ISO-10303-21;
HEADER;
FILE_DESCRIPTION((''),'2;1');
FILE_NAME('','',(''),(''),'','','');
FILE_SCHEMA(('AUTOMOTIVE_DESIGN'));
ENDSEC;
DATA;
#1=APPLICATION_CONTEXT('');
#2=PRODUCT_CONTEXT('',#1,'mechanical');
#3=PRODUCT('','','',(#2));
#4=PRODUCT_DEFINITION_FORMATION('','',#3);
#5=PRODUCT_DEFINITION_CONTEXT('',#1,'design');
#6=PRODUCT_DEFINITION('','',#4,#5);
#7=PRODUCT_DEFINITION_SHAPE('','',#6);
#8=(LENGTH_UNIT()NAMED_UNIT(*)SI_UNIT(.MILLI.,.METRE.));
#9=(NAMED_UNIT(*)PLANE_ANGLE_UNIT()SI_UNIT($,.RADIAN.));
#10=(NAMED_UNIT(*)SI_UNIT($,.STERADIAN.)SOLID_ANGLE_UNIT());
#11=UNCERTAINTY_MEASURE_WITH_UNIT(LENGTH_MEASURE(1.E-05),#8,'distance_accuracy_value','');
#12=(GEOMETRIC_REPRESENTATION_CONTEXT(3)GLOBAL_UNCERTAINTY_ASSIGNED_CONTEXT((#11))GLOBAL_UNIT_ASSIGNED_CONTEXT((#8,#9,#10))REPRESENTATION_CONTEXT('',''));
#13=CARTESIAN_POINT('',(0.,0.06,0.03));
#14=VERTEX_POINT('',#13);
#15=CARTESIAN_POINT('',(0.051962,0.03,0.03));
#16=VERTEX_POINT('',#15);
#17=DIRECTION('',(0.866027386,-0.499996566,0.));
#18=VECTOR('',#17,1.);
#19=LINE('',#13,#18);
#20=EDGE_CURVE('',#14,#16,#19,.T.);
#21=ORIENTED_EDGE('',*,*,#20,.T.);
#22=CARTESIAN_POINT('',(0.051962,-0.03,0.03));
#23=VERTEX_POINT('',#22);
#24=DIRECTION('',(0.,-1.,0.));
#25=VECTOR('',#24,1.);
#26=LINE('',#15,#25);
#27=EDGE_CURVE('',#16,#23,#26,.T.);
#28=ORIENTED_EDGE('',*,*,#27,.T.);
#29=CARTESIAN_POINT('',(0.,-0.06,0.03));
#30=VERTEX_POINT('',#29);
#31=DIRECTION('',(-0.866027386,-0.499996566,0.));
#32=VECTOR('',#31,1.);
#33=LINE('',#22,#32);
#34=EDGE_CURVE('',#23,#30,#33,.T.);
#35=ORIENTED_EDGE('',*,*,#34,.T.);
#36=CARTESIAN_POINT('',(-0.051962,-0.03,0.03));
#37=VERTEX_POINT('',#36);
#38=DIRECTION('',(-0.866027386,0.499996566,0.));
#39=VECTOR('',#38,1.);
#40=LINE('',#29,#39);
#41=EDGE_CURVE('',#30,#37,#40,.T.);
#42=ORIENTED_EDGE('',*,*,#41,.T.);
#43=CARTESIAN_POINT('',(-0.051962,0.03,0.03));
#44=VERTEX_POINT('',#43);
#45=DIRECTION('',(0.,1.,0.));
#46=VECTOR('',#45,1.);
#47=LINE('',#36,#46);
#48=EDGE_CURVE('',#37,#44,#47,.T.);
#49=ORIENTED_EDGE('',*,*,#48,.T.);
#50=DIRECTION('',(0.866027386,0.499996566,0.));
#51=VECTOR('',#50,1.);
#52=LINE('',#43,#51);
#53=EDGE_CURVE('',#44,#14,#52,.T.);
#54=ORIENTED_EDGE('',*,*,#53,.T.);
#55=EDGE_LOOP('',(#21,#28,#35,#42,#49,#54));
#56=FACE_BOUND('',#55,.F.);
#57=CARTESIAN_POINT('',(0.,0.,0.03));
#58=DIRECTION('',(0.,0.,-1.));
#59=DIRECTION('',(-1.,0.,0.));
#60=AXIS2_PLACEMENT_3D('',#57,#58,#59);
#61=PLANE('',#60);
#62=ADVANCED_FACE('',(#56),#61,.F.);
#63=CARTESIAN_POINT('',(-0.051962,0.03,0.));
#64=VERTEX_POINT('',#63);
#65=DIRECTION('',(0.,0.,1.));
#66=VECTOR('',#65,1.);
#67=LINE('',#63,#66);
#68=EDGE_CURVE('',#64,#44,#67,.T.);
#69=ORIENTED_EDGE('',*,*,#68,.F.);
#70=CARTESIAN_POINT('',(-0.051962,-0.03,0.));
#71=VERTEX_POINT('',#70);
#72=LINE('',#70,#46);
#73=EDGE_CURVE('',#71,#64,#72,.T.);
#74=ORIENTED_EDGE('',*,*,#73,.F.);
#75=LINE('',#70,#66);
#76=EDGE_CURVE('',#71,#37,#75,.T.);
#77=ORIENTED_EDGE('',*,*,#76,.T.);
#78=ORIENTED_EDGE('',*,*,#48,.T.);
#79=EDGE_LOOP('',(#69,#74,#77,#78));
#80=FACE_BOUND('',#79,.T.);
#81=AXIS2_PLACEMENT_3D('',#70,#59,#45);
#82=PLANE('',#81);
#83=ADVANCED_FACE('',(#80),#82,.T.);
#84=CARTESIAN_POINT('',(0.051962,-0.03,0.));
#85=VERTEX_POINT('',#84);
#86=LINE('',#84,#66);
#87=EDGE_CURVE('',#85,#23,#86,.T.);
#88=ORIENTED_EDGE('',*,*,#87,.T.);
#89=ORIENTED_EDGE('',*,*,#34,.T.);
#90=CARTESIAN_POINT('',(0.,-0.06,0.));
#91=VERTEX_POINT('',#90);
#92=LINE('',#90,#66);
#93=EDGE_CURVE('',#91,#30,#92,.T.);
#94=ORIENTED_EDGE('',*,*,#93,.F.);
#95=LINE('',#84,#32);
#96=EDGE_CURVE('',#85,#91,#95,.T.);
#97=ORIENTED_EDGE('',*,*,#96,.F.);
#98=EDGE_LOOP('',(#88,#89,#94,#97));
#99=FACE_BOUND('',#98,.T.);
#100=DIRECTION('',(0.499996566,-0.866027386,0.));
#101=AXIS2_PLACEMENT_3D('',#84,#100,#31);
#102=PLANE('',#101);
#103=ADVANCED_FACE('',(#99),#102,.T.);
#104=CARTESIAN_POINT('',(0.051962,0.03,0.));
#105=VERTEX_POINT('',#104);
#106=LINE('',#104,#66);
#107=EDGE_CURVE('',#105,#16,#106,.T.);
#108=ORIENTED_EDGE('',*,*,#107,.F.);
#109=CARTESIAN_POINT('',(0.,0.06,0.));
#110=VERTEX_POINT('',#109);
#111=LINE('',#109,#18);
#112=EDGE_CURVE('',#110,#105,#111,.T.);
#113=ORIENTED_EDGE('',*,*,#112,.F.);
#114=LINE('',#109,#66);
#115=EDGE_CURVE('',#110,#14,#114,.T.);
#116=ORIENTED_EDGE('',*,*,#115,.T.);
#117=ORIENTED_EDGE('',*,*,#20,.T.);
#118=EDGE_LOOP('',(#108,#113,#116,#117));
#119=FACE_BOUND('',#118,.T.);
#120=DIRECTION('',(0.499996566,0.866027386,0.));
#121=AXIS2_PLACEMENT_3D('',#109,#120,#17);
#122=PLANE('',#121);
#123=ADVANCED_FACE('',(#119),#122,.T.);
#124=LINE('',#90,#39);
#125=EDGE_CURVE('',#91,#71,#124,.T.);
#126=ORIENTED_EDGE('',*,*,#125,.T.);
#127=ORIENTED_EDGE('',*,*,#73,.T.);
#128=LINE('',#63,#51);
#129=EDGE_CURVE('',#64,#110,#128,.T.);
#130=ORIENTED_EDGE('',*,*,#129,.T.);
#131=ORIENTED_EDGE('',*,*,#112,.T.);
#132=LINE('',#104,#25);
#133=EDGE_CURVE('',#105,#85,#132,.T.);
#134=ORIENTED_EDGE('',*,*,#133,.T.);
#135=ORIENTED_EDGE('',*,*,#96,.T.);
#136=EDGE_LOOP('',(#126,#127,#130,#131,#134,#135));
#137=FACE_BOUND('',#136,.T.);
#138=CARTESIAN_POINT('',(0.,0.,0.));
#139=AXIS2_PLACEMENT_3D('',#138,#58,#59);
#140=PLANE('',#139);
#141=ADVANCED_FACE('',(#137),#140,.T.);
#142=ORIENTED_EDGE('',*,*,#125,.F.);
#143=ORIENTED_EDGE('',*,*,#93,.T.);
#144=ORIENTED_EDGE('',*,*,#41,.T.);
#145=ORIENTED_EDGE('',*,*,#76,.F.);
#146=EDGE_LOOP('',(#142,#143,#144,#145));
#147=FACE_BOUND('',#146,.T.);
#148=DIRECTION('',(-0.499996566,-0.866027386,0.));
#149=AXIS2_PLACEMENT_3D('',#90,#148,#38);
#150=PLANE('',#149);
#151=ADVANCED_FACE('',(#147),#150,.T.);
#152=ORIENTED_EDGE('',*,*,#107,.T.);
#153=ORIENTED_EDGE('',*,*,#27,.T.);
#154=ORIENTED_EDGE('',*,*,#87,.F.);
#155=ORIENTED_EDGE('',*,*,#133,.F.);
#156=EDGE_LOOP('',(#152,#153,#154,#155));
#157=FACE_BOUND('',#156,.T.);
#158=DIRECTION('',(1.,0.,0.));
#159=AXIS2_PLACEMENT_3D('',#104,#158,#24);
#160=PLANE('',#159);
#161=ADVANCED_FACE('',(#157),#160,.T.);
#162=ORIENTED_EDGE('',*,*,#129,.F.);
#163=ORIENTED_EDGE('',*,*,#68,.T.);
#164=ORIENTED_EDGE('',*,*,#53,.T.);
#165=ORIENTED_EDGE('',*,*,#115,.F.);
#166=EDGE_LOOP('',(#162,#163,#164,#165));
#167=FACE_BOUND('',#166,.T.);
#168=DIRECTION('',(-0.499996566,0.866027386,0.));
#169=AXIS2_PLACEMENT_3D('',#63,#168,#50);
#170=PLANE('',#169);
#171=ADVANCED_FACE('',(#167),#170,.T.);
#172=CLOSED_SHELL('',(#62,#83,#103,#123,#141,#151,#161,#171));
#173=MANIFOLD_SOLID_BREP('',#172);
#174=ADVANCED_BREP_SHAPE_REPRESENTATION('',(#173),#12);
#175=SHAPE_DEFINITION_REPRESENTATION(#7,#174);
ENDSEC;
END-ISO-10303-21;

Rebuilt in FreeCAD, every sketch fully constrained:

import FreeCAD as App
import Part
import Sketcher

V = App.Vector
Q = App.Units.Quantity

doc = App.newDocument("Part")
params = doc.addObject("Spreadsheet::Sheet", "Params")
for row, (alias, value) in enumerate([
    ("sketch1_height", "0.06 mm"),
    ("sketch1_length", "0.06 mm"),
    ("pad1_length", "0.03 mm"),
], start=1):
    params.set(f"A{row}", alias)
    params.set(f"B{row}", "=" + value)
    params.setAlias(f"B{row}", alias)

body = doc.addObject("PartDesign::Body", "Body")

# Sketch on XY plane
sketch1 = doc.addObject("Sketcher::SketchObject", "Sketch")
body.addObject(sketch1)
sketch1.AttachmentSupport = (doc.XY_Plane, [""])
sketch1.MapMode = "FlatFace"
sketch1.addGeometry([
    Part.LineSegment(V(0.05, -0.03, 0), V(0.05, 0.03, 0)),  # 0
    Part.LineSegment(V(0.05, 0.03, 0), V(0, 0.06, 0)),  # 1
    Part.LineSegment(V(0, 0.06, 0), V(-0.05, 0.03, 0)),  # 2
    Part.LineSegment(V(-0.05, 0.03, 0), V(-0.05, -0.03, 0)),  # 3
    Part.LineSegment(V(-0.05, -0.03, 0), V(0, -0.06, 0)),  # 4
    Part.LineSegment(V(0, -0.06, 0), V(0.05, -0.03, 0)),  # 5
], False)
sketch1.addConstraint([
    Sketcher.Constraint("Coincident", 0, 2, 1, 1),
    Sketcher.Constraint("Coincident", 1, 2, 2, 1),
    Sketcher.Constraint("Coincident", 2, 2, 3, 1),
    Sketcher.Constraint("Coincident", 3, 2, 4, 1),
    Sketcher.Constraint("Coincident", 4, 2, 5, 1),
    Sketcher.Constraint("Coincident", 5, 2, 0, 1),
    Sketcher.Constraint("Vertical", 0),
    Sketcher.Constraint("Vertical", 3),
    Sketcher.Constraint("Symmetric", 0, 2, 3, 2, -1, 1),
    Sketcher.Constraint("Symmetric", 1, 2, 4, 2, -1, 1),
    Sketcher.Constraint("PointOnObject", 1, 2, -2),
    Sketcher.Constraint("Parallel", 2, 5),
    Sketcher.Constraint("Horizontal", 0, 2, 2, 2),
    Sketcher.Constraint("DistanceY", 0, 1, 0, 2, Q("0.06 mm")),
    Sketcher.Constraint("Distance", 1, Q("0.06 mm")),
    Sketcher.Constraint("DistanceY", -1, 1, 1, 2, Q("0.06 mm")),
])
sketch1.setExpression("Constraints[13]", "Params.sketch1_height")
sketch1.setExpression("Constraints[14]", "Params.sketch1_length")
pad1 = doc.addObject("PartDesign::Pad", "Pad")
body.addObject(pad1)
pad1.Profile = sketch1
pad1.setExpression("Length", "Params.pad1_length")

doc.recompute()
